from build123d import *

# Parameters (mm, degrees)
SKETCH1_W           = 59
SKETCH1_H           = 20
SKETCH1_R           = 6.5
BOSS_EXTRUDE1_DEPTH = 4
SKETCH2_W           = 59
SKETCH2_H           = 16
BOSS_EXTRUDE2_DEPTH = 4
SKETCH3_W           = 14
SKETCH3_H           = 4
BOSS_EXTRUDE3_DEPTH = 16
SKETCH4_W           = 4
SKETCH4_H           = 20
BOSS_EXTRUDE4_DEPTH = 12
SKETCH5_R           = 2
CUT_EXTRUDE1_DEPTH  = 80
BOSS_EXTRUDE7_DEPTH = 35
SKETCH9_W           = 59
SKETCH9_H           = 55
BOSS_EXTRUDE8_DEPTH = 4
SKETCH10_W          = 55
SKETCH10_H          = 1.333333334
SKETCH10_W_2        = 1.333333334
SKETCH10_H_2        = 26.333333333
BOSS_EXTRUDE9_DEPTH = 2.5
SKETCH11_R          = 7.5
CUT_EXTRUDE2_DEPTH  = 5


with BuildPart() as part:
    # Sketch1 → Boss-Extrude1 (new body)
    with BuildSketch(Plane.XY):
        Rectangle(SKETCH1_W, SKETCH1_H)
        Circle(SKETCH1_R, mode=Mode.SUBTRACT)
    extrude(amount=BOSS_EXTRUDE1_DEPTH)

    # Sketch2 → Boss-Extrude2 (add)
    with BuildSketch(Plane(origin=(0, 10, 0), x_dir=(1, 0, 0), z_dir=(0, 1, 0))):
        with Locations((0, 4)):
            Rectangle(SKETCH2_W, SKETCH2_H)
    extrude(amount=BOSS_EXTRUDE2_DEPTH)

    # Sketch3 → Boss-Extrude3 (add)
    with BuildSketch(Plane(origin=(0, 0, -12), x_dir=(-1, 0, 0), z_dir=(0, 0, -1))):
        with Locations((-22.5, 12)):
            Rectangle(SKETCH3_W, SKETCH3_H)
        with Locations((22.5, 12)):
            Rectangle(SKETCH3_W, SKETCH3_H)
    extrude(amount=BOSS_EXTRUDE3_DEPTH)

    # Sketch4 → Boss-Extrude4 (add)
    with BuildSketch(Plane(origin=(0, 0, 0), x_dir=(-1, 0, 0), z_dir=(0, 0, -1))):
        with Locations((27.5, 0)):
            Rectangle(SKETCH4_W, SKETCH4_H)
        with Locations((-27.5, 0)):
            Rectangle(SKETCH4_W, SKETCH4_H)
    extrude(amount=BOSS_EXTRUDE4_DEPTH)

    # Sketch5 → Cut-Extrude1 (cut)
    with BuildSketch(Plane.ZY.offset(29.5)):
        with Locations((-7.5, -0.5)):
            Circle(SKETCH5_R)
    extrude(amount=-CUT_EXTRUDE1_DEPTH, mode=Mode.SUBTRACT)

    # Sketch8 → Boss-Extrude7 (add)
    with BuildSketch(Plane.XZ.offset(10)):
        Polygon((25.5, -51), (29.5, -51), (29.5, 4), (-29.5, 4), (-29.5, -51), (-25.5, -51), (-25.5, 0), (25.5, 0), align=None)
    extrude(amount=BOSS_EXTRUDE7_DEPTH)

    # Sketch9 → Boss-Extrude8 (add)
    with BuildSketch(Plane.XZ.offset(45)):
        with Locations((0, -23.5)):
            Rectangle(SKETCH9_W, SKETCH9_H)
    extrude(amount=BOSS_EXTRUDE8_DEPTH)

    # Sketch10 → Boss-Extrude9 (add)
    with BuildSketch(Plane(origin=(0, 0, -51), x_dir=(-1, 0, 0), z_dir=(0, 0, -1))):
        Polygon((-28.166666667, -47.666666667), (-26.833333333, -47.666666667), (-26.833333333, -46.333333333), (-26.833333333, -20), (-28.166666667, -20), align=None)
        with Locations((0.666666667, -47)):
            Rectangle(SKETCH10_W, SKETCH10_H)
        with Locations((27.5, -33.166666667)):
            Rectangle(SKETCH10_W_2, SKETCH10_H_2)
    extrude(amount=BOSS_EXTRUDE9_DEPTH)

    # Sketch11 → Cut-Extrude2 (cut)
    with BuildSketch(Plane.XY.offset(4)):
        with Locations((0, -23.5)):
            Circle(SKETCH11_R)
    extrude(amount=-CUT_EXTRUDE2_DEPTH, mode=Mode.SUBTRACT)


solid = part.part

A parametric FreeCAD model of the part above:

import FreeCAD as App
import Part
import Sketcher

V = App.Vector

doc = App.newDocument("Part")
body = doc.addObject("PartDesign::Body", "Body")

# Sketch on XY plane
sketch1 = doc.addObject("Sketcher::SketchObject", "Sketch")
body.addObject(sketch1)
sketch1.AttachmentSupport = (doc.XY_Plane, [""])
sketch1.MapMode = "FlatFace"
sketch1.addGeometry([
    Part.LineSegment(V(-30, 10, 0), V(-30, -10, 0)),  # 0
    Part.LineSegment(V(-30, -10, 0), V(30, -10, 0)),  # 1
    Part.LineSegment(V(30, -10, 0), V(30, 10, 0)),  # 2
    Part.LineSegment(V(30, 10, 0), V(-30, 10, 0)),  # 3
    Part.Circle(V(0, 0, 0), V(0, 0, 1), 6),  # 4
], False)
sketch1.addConstraint([
    Sketcher.Constraint("Coincident", 0, 2, 1, 1),
    Sketcher.Constraint("Coincident", 1, 2, 2, 1),
    Sketcher.Constraint("Coincident", 2, 2, 3, 1),
    Sketcher.Constraint("Coincident", 3, 2, 0, 1),
    Sketcher.Constraint("Vertical", 0),
    Sketcher.Constraint("Horizontal", 1),
    Sketcher.Constraint("Vertical", 2),
    Sketcher.Constraint("Horizontal", 3),
    Sketcher.Constraint("Coincident", 4, 3, -1, 1),
    Sketcher.Constraint("Symmetric", 0, 2, 2, 2, -1, 1),
    Sketcher.Constraint("Diameter", 4, 13.0),
    Sketcher.Constraint("DistanceX", 1, 1, 1, 2, 59.0),
    Sketcher.Constraint("DistanceY", 0, 2, 0, 1, 20.0),
])
pad1 = doc.addObject("PartDesign::Pad", "Pad")
body.addObject(pad1)
pad1.Profile = sketch1
pad1.Length = 4

# Sketch on XZ plane
sketch2 = doc.addObject("Sketcher::SketchObject", "Sketch001")
body.addObject(sketch2)
sketch2.AttachmentSupport = (doc.XZ_Plane, [""])
sketch2.MapMode = "FlatFace"
sketch2.AttachmentOffset = App.Placement(V(0, 0, -10), App.Rotation())
sketch2.addGeometry([
    Part.LineSegment(V(-30, -12, 0), V(-30, 4, 0)),
    Part.LineSegment(V(-30, 4, 0), V(30, 4, 0)),
    Part.LineSegment(V(30, 4, 0), V(30, -12, 0)),
    Part.LineSegment(V(30, -12, 0), V(-30, -12, 0)),
], False)
sketch2.addConstraint([
    Sketcher.Constraint("Coincident", 0, 2, 1, 1),
    Sketcher.Constraint("Coincident", 1, 2, 2, 1),
    Sketcher.Constraint("Coincident", 2, 2, 3, 1),
    Sketcher.Constraint("Coincident", 3, 2, 0, 1),
    Sketcher.Constraint("Vertical", 0),
    Sketcher.Constraint("Horizontal", 1),
    Sketcher.Constraint("Vertical", 2),
    Sketcher.Constraint("Horizontal", 3),
    Sketcher.Constraint("DistanceX", 1, 1, 1, 2, 59.0),
    Sketcher.Constraint("DistanceY", 0, 1, 0, 2, 16.0),
    Sketcher.Constraint("DistanceY", -1, 1, 0, 2, 4.0),
    Sketcher.Constraint("DistanceX", 0, 2, -1, 1, 29.5),
])
pad2 = doc.addObject("PartDesign::Pad", "Pad001")
body.addObject(pad2)
pad2.Profile = sketch2
pad2.Length = 4
pad2.Reversed = True

# Sketch on XY plane
sketch3 = doc.addObject("Sketcher::SketchObject", "Sketch002")
body.addObject(sketch3)
sketch3.AttachmentSupport = (doc.XY_Plane, [""])
sketch3.MapMode = "FlatFace"
sketch3.AttachmentOffset = App.Placement(V(0, 0, -12), App.Rotation())
sketch3.addGeometry([
    Part.LineSegment(V(29.5, 14, 0), V(29.5, 10, 0)),  # 0
    Part.LineSegment(V(29.5, 10, 0), V(15.5, 10, 0)),  # 1
    Part.LineSegment(V(15.5, 10, 0), V(15.5, 14, 0)),  # 2
    Part.LineSegment(V(15.5, 14, 0), V(29.5, 14, 0)),  # 3
    Part.LineSegment(V(-15.5, 14, 0), V(-15.5, 10, 0)),  # 4
    Part.LineSegment(V(-15.5, 10, 0), V(-29.5, 10, 0)),  # 5
    Part.LineSegment(V(-29.5, 10, 0), V(-29.5, 14, 0)),  # 6
    Part.LineSegment(V(-29.5, 14, 0), V(-15.5, 14, 0)),  # 7
], False)
sketch3.addConstraint([
    Sketcher.Constraint("Coincident", 0, 2, 1, 1),
    Sketcher.Constraint("Coincident", 1, 2, 2, 1),
    Sketcher.Constraint("Coincident", 2, 2, 3, 1),
    Sketcher.Constraint("Coincident", 3, 2, 0, 1),
    Sketcher.Constraint("Coincident", 4, 2, 5, 1),
    Sketcher.Constraint("Coincident", 5, 2, 6, 1),
    Sketcher.Constraint("Coincident", 6, 2, 7, 1),
    Sketcher.Constraint("Coincident", 7, 2, 4, 1),
    Sketcher.Constraint("Vertical", 0),
    Sketcher.Constraint("Horizontal", 1),
    Sketcher.Constraint("Vertical", 2),
    Sketcher.Constraint("Horizontal", 3),
    Sketcher.Constraint("Vertical", 4),
    Sketcher.Constraint("Horizontal", 5),
    Sketcher.Constraint("Vertical", 6),
    Sketcher.Constraint("Horizontal", 7),
    Sketcher.Constraint("Symmetric", 1, 2, 4, 2, -2),
    Sketcher.Constraint("Symmetric", 3, 2, 6, 2, -2),
    Sketcher.Constraint("DistanceX", 1, 2, 1, 1, 14.0),
    Sketcher.Constraint("DistanceY", 0, 2, 0, 1, 4.0),
    Sketcher.Constraint("DistanceY", -1, 1, 0, 2, 10.0),
    Sketcher.Constraint("DistanceX", 4, 2, 1, 2, 31.0),
])
pad3 = doc.addObject("PartDesign::Pad", "Pad002")
body.addObject(pad3)
pad3.Profile = sketch3
pad3.Length = 16
pad3.Reversed = True

# Sketch on XY plane
sketch4 = doc.addObject("Sketcher::SketchObject", "Sketch003")
body.addObject(sketch4)
sketch4.AttachmentSupport = (doc.XY_Plane, [""])
sketch4.MapMode = "FlatFace"
sketch4.addGeometry([
    Part.LineSegment(V(-25.5, 10, 0), V(-25.5, -10, 0)),  # 0
    Part.LineSegment(V(-25.5, -10, 0), V(-29.5, -10, 0)),  # 1
    Part.LineSegment(V(-29.5, -10, 0), V(-29.5, 10, 0)),  # 2
    Part.LineSegment(V(-29.5, 10, 0), V(-25.5, 10, 0)),  # 3
    Part.LineSegment(V(29.5, 10, 0), V(29.5, -10, 0)),  # 4
    Part.LineSegment(V(29.5, -10, 0), V(25.5, -10, 0)),  # 5
    Part.LineSegment(V(25.5, -10, 0), V(25.5, 10, 0)),  # 6
    Part.LineSegment(V(25.5, 10, 0), V(29.5, 10, 0)),  # 7
], False)
sketch4.addConstraint([
    Sketcher.Constraint("Coincident", 0, 2, 1, 1),
    Sketcher.Constraint("Coincident", 1, 2, 2, 1),
    Sketcher.Constraint("Coincident", 2, 2, 3, 1),
    Sketcher.Constraint("Coincident", 3, 2, 0, 1),
    Sketcher.Constraint("Coincident", 4, 2, 5, 1),
    Sketcher.Constraint("Coincident", 5, 2, 6, 1),
    Sketcher.Constraint("Coincident", 6, 2, 7, 1),
    Sketcher.Constraint("Coincident", 7, 2, 4, 1),
    Sketcher.Constraint("Vertical", 0),
    Sketcher.Constraint("Horizontal", 1),
    Sketcher.Constraint("Vertical", 2),
    Sketcher.Constraint("Horizontal", 3),
    Sketcher.Constraint("Vertical", 4),
    Sketcher.Constraint("Horizontal", 5),
    Sketcher.Constraint("Vertical", 6),
    Sketcher.Constraint("Horizontal", 7),
    Sketcher.Constraint("Symmetric", 2, 2, 4, 2, -1, 1),
    Sketcher.Constraint("Symmetric", 0, 2, 6, 2, -1, 1),
    Sketcher.Constraint("Horizontal", 1, 2, 4, 2),
    Sketcher.Constraint("DistanceX", 1, 2, 1, 1, 4.0),
    Sketcher.Constraint("DistanceY", 0, 2, 0, 1, 20.0),
    Sketcher.Constraint("DistanceX", 0, 2, 4, 2, 55.0),
])
pad4 = doc.addObject("PartDesign::Pad", "Pad003")
body.addObject(pad4)
pad4.Profile = sketch4
pad4.Length = 12
pad4.Reversed = True

# Sketch on YZ plane
sketch5 = doc.addObject("Sketcher::SketchObject", "Sketch004")
body.addObject(sketch5)
sketch5.AttachmentSupport = (doc.YZ_Plane, [""])
sketch5.MapMode = "FlatFace"
sketch5.AttachmentOffset = App.Placement(V(0, 0, -29.5), App.Rotation())
sketch5.addGeometry(Part.Circle(V(-0.5, -7.5, 0), V(0, 0, 1), 2), False)
sketch5.addConstraint([
    Sketcher.Constraint("Diameter", 0, 4.0),
    Sketcher.Constraint("DistanceX", 0, 3, -1, 1, 0.5),
    Sketcher.Constraint("DistanceY", 0, 3, -1, 1, 7.5),
])
pocket1 = doc.addObject("PartDesign::Pocket", "Pocket")
body.addObject(pocket1)
pocket1.Profile = sketch5
pocket1.Length = 80
pocket1.Reversed = True

# Sketch on XZ plane
sketch6 = doc.addObject("Sketcher::SketchObject", "Sketch005")
body.addObject(sketch6)
sketch6.AttachmentSupport = (doc.XZ_Plane, [""])
sketch6.MapMode = "FlatFace"
sketch6.AttachmentOffset = App.Placement(V(0, 0, 10), App.Rotation())
sketch6.addGeometry([
    Part.LineSegment(V(25.5, -51, 0), V(29.5, -51, 0)),  # 0
    Part.LineSegment(V(29.5, -51, 0), V(29.5, 4, 0)),  # 1
    Part.LineSegment(V(29.5, 4, 0), V(-29.5, 4, 0)),  # 2
    Part.LineSegment(V(-29.5, 4, 0), V(-29.5, -51, 0)),  # 3
    Part.LineSegment(V(-29.5, -51, 0), V(-25.5, -51, 0)),  # 4
    Part.LineSegment(V(-25.5, -51, 0), V(-25.5, 0, 0)),  # 5
    Part.LineSegment(V(-25.5, 0, 0), V(25.5, 0, 0)),  # 6
    Part.LineSegment(V(25.5, 0, 0), V(25.5, -51, 0)),  # 7
], False)
sketch6.addConstraint([
    Sketcher.Constraint("Coincident", 0, 2, 1, 1),
    Sketcher.Constraint("Coincident", 1, 2, 2, 1),
    Sketcher.Constraint("Coincident", 2, 2, 3, 1),
    Sketcher.Constraint("Coincident", 3, 2, 4, 1),
    Sketcher.Constraint("Coincident", 4, 2, 5, 1),
    Sketcher.Constraint("Coincident", 5, 2, 6, 1),
    Sketcher.Constraint("Coincident", 6, 2, 7, 1),
    Sketcher.Constraint("Coincident", 7, 2, 0, 1),
    Sketcher.Constraint("Horizontal", 0),
    Sketcher.Constraint("Vertical", 1),
    Sketcher.Constraint("Horizontal", 2),
    Sketcher.Constraint("Vertical", 3),
    Sketcher.Constraint("Horizontal", 4),
    Sketcher.Constraint("Vertical", 5),
    Sketcher.Constraint("Horizontal", 6),
    Sketcher.Constraint("Vertical", 7),
    Sketcher.Constraint("Symmetric", 5, 2, 6, 2, -1, 1),
    Sketcher.Constraint("Symmetric", 0, 2, 3, 2, -2),
    Sketcher.Constraint("Equal", 6, 5),
    Sketcher.Constraint("DistanceX", 0, 1, 0, 2, 4.0),
    Sketcher.Constraint("DistanceX", 2, 2, 2, 1, 59.0),
    Sketcher.Constraint("DistanceY", 1, 1, 1, 2, 55.0),
])
pad5 = doc.addObject("PartDesign::Pad", "Pad004")
body.addObject(pad5)
pad5.Profile = sketch6
pad5.Length = 35

# Sketch on XZ plane
sketch7 = doc.addObject("Sketcher::SketchObject", "Sketch006")
body.addObject(sketch7)
sketch7.AttachmentSupport = (doc.XZ_Plane, [""])
sketch7.MapMode = "FlatFace"
sketch7.AttachmentOffset = App.Placement(V(0, 0, 45), App.Rotation())
sketch7.addGeometry([
    Part.LineSegment(V(-30, 4, 0), V(-30, -51, 0)),
    Part.LineSegment(V(-30, -51, 0), V(30, -51, 0)),
    Part.LineSegment(V(30, -51, 0), V(30, 4, 0)),
    Part.LineSegment(V(30, 4, 0), V(-30, 4, 0)),
], False)
sketch7.addConstraint([
    Sketcher.Constraint("Coincident", 0, 2, 1, 1),
    Sketcher.Constraint("Coincident", 1, 2, 2, 1),
    Sketcher.Constraint("Coincident", 2, 2, 3, 1),
    Sketcher.Constraint("Coincident", 3, 2, 0, 1),
    Sketcher.Constraint("Vertical", 0),
    Sketcher.Constraint("Horizontal", 1),
    Sketcher.Constraint("Vertical", 2),
    Sketcher.Constraint("Horizontal", 3),
    Sketcher.Constraint("DistanceX", 1, 1, 1, 2, 59.0),
    Sketcher.Constraint("DistanceY", 0, 2, 0, 1, 55.0),
    Sketcher.Constraint("DistanceY", 0, 2, -1, 1, 51.0),
    Sketcher.Constraint("DistanceX", 0, 2, -1, 1, 29.5),
])
pad6 = doc.addObject("PartDesign::Pad", "Pad005")
body.addObject(pad6)
pad6.Profile = sketch7
pad6.Length = 4

# Sketch on XY plane
sketch8 = doc.addObject("Sketcher::SketchObject", "Sketch007")
body.addObject(sketch8)
sketch8.AttachmentSupport = (doc.XY_Plane, [""])
sketch8.MapMode = "FlatFace"
sketch8.AttachmentOffset = App.Placement(V(0, 0, -51), App.Rotation())
sketch8.addGeometry([
    Part.LineSegment(V(28.2, -47.7, 0), V(-28.2, -47.7, 0)),  # 0
    Part.LineSegment(V(-28.2, -47.7, 0), V(-28.2, -20, 0)),  # 1
    Part.LineSegment(V(-28.2, -20, 0), V(-26.8, -20, 0)),  # 2
    Part.LineSegment(V(-26.8, -20, 0), V(-26.8, -46.3, 0)),  # 3
    Part.LineSegment(V(-26.8, -46.3, 0), V(26.8, -46.3, 0)),  # 4
    Part.LineSegment(V(26.8, -46.3, 0), V(26.8, -20, 0)),  # 5
    Part.LineSegment(V(26.8, -20, 0), V(28.2, -20, 0)),  # 6
    Part.LineSegment(V(28.2, -20, 0), V(28.2, -47.7, 0)),  # 7
], False)
sketch8.addConstraint([
    Sketcher.Constraint("Coincident", 0, 2, 1, 1),
    Sketcher.Constraint("Coincident", 1, 2, 2, 1),
    Sketcher.Constraint("Coincident", 2, 2, 3, 1),
    Sketcher.Constraint("Coincident", 3, 2, 4, 1),
    Sketcher.Constraint("Coincident", 4, 2, 5, 1),
    Sketcher.Constraint("Coincident", 5, 2, 6, 1),
    Sketcher.Constraint("Coincident", 6, 2, 7, 1),
    Sketcher.Constraint("Coincident", 7, 2, 0, 1),
    Sketcher.Constraint("Horizontal", 0),
    Sketcher.Constraint("Vertical", 1),
    Sketcher.Constraint("Horizontal", 2),
    Sketcher.Constraint("Vertical", 3),
    Sketcher.Constraint("Horizontal", 4),
    Sketcher.Constraint("Vertical", 5),
    Sketcher.Constraint("Horizontal", 6),
    Sketcher.Constraint("Vertical", 7),
    Sketcher.Constraint("Symmetric", 2, 2, 5, 2, -2),
    Sketcher.Constraint("Equal", 2, 6),
    Sketcher.Constraint("DistanceY", 1, 2, -1, 1, 20.0),
    Sketcher.Constraint("DistanceX", 0, 2, 4, 2, 55.0),
    Sketcher.Constraint("DistanceX", 0, 2, 0, 1, 56.333333),
    Sketcher.Constraint("DistanceY", 1, 1, 1, 2, 27.666667),
    Sketcher.Constraint("DistanceY", 3, 2, 3, 1, 26.333333),
])
pad7 = doc.addObject("PartDesign::Pad", "Pad006")
body.addObject(pad7)
pad7.Profile = sketch8
pad7.Length = 2.5
pad7.Reversed = True

# Sketch on XY plane
sketch9 = doc.addObject("Sketcher::SketchObject", "Sketch008")
body.addObject(sketch9)
sketch9.AttachmentSupport = (doc.XY_Plane, [""])
sketch9.MapMode = "FlatFace"
sketch9.AttachmentOffset = App.Placement(V(0, 0, 4), App.Rotation())
sketch9.addGeometry(Part.Circle(V(0, -24, 0), V(0, 0, 1), 8), False)
sketch9.addConstraint([
    Sketcher.Constraint("PointOnObject", 0, 3, -2),
    Sketcher.Constraint("Diameter", 0, 15.0),
    Sketcher.Constraint("DistanceY", 0, 3, -1, 1, 23.5),
])
pocket2 = doc.addObject("PartDesign::Pocket", "Pocket001")
body.addObject(pocket2)
pocket2.Profile = sketch9
pocket2.Length = 5

doc.recompute()
